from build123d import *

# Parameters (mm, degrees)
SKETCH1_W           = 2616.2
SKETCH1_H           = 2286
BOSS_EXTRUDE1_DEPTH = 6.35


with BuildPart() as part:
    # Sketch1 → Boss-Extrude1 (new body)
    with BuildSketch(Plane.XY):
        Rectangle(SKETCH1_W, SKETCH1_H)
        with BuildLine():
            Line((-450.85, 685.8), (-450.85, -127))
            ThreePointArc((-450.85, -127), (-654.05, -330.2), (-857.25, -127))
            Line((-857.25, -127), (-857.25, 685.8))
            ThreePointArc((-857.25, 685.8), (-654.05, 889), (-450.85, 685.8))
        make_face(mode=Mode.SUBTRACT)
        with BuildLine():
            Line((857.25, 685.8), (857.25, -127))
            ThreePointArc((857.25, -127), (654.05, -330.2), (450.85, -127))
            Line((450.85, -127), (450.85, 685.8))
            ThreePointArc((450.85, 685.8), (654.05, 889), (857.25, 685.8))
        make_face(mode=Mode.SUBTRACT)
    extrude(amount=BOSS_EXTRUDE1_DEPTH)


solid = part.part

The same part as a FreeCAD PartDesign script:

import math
import FreeCAD as App
import Part
import Sketcher
from FreeCAD import Vector
Q = App.Units.Quantity


def add_polygon(sketch, points):
    """Adds a closed chain of lines whose ends are joined by coincident constraints."""
    first, n = sketch.GeometryCount, len(points)
    for a, b in zip(points, points[1:] + points[:1]):
        sketch.addGeometry(Part.LineSegment(App.Vector(*a, 0), App.Vector(*b, 0)), False)
    for i in range(n):
        sketch.addConstraint(Sketcher.Constraint("Coincident", first + i, 2, first + (i + 1) % n, 1))

doc = App.newDocument("Part")
body = doc.addObject("PartDesign::Body", "Body")

sketch1 = body.newObject("Sketcher::SketchObject", "Sketch")
sketch1.AttachmentSupport = (doc.getObject("XY_Plane"), [""])
sketch1.MapMode = "FlatFace"
add_polygon(sketch1, [(-1308.1, 1143), (-1308.1, -1143), (1308.1, -1143), (1308.1, 1143)])
sketch1.addGeometry(Part.ArcOfCircle(Part.Circle(Vector(-654.05, 685.8, 0), Vector(0, 0, 1), 203.2), math.radians(0), math.radians(180)), False)
sketch1.addGeometry(Part.LineSegment(Vector(-450.85, 685.8, 0), Vector(-450.85, -127, 0)), False)
sketch1.addGeometry(Part.ArcOfCircle(Part.Circle(Vector(-654.05, -127, 0), Vector(0, 0, 1), 203.2), math.radians(180), math.radians(360)), False)
sketch1.addGeometry(Part.LineSegment(Vector(-857.25, -127, 0), Vector(-857.25, 685.8, 0)), False)
sketch1.addGeometry(Part.ArcOfCircle(Part.Circle(Vector(654.05, 685.8, 0), Vector(0, 0, 1), 203.2), math.radians(0), math.radians(180)), False)
sketch1.addGeometry(Part.LineSegment(Vector(857.25, 685.8, 0), Vector(857.25, -127, 0)), False)
sketch1.addGeometry(Part.ArcOfCircle(Part.Circle(Vector(654.05, -127, 0), Vector(0, 0, 1), 203.2), math.radians(180), math.radians(360)), False)
sketch1.addGeometry(Part.LineSegment(Vector(450.85, -127, 0), Vector(450.85, 685.8, 0)), False)
sketch1.addConstraint(Sketcher.Constraint("Tangent", 4, 1, 5, 1))
sketch1.addConstraint(Sketcher.Constraint("Tangent", 5, 2, 6, 2))
sketch1.addConstraint(Sketcher.Constraint("Tangent", 6, 1, 7, 1))
sketch1.addConstraint(Sketcher.Constraint("Tangent", 7, 2, 4, 2))
sketch1.addConstraint(Sketcher.Constraint("Tangent", 8, 1, 9, 1))
sketch1.addConstraint(Sketcher.Constraint("Tangent", 9, 2, 10, 2))
sketch1.addConstraint(Sketcher.Constraint("Tangent", 10, 1, 11, 1))
sketch1.addConstraint(Sketcher.Constraint("Tangent", 11, 2, 8, 2))
sketch1.addConstraint(Sketcher.Constraint("Vertical", 0))
sketch1.addConstraint(Sketcher.Constraint("Horizontal", 1))
sketch1.addConstraint(Sketcher.Constraint("Vertical", 2))
sketch1.addConstraint(Sketcher.Constraint("Horizontal", 3))
sketch1.addConstraint(Sketcher.Constraint("Vertical", 5))
sketch1.addConstraint(Sketcher.Constraint("Vertical", 7))
sketch1.addConstraint(Sketcher.Constraint("Vertical", 9))
sketch1.addConstraint(Sketcher.Constraint("Vertical", 11))
sketch1.addConstraint(Sketcher.Constraint("Equal", 6, 8))
sketch1.addConstraint(Sketcher.Constraint("Symmetric", 0, 2, 2, 2, -1, 1))
sketch1.addConstraint(Sketcher.Constraint("Symmetric", 4, 3, 8, 3, -2))
sketch1.addConstraint(Sketcher.Constraint("Horizontal", 6, 3, 10, 3))
sketch1.addConstraint(Sketcher.Constraint("Radius", 4, Q("8 in")))
sketch1.addConstraint(Sketcher.Constraint("DistanceX", 1, 1, 1, 2, Q("103 in")))
sketch1.addConstraint(Sketcher.Constraint("DistanceY", 0, 2, 0, 1, Q("90 in")))
sketch1.addConstraint(Sketcher.Constraint("DistanceY", 5, 2, 5, 1, Q("32 in")))
sketch1.addConstraint(Sketcher.Constraint("DistanceY", -1, 1, 4, 3, Q("27 in")))
sketch1.addConstraint(Sketcher.Constraint("DistanceX", 4, 3, 8, 3, Q("51.5 in")))
pad1 = body.newObject("PartDesign::Pad", "Pad")
pad1.Profile = sketch1
pad1.Length = Q("0.25 in")

doc.recompute()
